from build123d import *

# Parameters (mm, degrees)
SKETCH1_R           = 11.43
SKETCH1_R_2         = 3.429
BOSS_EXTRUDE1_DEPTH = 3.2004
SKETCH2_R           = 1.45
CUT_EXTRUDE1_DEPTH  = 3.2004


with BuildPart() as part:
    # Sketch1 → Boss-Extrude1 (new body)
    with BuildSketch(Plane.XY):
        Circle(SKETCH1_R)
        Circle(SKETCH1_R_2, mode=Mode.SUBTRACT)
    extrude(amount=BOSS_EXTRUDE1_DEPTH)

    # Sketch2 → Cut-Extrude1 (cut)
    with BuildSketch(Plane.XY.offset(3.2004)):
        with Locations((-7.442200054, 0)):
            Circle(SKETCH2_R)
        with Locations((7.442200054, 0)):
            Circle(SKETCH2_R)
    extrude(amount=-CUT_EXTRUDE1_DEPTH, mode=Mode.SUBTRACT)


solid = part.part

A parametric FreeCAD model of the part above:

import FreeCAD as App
import Part
import Sketcher

V = App.Vector
Q = App.Units.Quantity

doc = App.newDocument("Part")
params = doc.addObject("Spreadsheet::Sheet", "Params")
for row, (alias, value) in enumerate([
    ("sketch1_diameter", "0.9 in"),
    ("sketch1_diameter2", "0.27 in"),
    ("pad1_length", "0.126 in"),
    ("pocket1_length", "0.126 in"),
], start=1):
    params.set(f"A{row}", alias)
    params.set(f"B{row}", "=" + value)
    params.setAlias(f"B{row}", alias)

body = doc.addObject("PartDesign::Body", "Body")

# Sketch on XY plane
sketch1 = body.newObject("Sketcher::SketchObject", "Sketch")
sketch1.AttachmentSupport = (doc.getObject("XY_Plane"), [""])
sketch1.MapMode = "FlatFace"
sketch1.addGeometry([
    Part.Circle(V(0, 0, 0), V(0, 0, 1), 11.4),
    Part.Circle(V(0, 0, 0), V(0, 0, 1), 3.4),
], False)
sketch1.addConstraint([
    Sketcher.Constraint("Coincident", 0, 3, -1, 1),
    Sketcher.Constraint("Coincident", 1, 3, -1, 1),
    Sketcher.Constraint("Diameter", 0, Q("0.9 in")),
    Sketcher.Constraint("Diameter", 1, Q("0.27 in")),
])
sketch1.setExpression("Constraints[2]", "Params.sketch1_diameter")
sketch1.setExpression("Constraints[3]", "Params.sketch1_diameter2")
pad1 = body.newObject("PartDesign::Pad", "Pad")
pad1.Profile = sketch1
pad1.setExpression("Length", "Params.pad1_length")

# Sketch on XY plane
sketch2 = body.newObject("Sketcher::SketchObject", "Sketch001")
sketch2.AttachmentSupport = (doc.getObject("XY_Plane"), [""])
sketch2.MapMode = "FlatFace"
sketch2.AttachmentOffset = App.Placement(V(0, 0, 0.126 * 25.4), App.Rotation())
sketch2.addGeometry([
    Part.Circle(V(-7.4, 0, 0), V(0, 0, 1), 1.4),
    Part.Circle(V(7.4, 0, 0), V(0, 0, 1), 1.4),
], False)
sketch2.addConstraint([
    Sketcher.Constraint("Equal", 0, 1),
    Sketcher.Constraint("Symmetric", 0, 3, 1, 3, -1, 1),
    Sketcher.Constraint("PointOnObject", 0, 3, -1),
    Sketcher.Constraint("Diameter", 0, Q("2.9 mm")),
    Sketcher.Constraint("DistanceX", 0, 3, -1, 1, Q("0.293 in")),
])
pocket1 = body.newObject("PartDesign::Pocket", "Pocket")
pocket1.Profile = sketch2
pocket1.setExpression("Length", "Params.pocket1_length")

doc.recompute()
